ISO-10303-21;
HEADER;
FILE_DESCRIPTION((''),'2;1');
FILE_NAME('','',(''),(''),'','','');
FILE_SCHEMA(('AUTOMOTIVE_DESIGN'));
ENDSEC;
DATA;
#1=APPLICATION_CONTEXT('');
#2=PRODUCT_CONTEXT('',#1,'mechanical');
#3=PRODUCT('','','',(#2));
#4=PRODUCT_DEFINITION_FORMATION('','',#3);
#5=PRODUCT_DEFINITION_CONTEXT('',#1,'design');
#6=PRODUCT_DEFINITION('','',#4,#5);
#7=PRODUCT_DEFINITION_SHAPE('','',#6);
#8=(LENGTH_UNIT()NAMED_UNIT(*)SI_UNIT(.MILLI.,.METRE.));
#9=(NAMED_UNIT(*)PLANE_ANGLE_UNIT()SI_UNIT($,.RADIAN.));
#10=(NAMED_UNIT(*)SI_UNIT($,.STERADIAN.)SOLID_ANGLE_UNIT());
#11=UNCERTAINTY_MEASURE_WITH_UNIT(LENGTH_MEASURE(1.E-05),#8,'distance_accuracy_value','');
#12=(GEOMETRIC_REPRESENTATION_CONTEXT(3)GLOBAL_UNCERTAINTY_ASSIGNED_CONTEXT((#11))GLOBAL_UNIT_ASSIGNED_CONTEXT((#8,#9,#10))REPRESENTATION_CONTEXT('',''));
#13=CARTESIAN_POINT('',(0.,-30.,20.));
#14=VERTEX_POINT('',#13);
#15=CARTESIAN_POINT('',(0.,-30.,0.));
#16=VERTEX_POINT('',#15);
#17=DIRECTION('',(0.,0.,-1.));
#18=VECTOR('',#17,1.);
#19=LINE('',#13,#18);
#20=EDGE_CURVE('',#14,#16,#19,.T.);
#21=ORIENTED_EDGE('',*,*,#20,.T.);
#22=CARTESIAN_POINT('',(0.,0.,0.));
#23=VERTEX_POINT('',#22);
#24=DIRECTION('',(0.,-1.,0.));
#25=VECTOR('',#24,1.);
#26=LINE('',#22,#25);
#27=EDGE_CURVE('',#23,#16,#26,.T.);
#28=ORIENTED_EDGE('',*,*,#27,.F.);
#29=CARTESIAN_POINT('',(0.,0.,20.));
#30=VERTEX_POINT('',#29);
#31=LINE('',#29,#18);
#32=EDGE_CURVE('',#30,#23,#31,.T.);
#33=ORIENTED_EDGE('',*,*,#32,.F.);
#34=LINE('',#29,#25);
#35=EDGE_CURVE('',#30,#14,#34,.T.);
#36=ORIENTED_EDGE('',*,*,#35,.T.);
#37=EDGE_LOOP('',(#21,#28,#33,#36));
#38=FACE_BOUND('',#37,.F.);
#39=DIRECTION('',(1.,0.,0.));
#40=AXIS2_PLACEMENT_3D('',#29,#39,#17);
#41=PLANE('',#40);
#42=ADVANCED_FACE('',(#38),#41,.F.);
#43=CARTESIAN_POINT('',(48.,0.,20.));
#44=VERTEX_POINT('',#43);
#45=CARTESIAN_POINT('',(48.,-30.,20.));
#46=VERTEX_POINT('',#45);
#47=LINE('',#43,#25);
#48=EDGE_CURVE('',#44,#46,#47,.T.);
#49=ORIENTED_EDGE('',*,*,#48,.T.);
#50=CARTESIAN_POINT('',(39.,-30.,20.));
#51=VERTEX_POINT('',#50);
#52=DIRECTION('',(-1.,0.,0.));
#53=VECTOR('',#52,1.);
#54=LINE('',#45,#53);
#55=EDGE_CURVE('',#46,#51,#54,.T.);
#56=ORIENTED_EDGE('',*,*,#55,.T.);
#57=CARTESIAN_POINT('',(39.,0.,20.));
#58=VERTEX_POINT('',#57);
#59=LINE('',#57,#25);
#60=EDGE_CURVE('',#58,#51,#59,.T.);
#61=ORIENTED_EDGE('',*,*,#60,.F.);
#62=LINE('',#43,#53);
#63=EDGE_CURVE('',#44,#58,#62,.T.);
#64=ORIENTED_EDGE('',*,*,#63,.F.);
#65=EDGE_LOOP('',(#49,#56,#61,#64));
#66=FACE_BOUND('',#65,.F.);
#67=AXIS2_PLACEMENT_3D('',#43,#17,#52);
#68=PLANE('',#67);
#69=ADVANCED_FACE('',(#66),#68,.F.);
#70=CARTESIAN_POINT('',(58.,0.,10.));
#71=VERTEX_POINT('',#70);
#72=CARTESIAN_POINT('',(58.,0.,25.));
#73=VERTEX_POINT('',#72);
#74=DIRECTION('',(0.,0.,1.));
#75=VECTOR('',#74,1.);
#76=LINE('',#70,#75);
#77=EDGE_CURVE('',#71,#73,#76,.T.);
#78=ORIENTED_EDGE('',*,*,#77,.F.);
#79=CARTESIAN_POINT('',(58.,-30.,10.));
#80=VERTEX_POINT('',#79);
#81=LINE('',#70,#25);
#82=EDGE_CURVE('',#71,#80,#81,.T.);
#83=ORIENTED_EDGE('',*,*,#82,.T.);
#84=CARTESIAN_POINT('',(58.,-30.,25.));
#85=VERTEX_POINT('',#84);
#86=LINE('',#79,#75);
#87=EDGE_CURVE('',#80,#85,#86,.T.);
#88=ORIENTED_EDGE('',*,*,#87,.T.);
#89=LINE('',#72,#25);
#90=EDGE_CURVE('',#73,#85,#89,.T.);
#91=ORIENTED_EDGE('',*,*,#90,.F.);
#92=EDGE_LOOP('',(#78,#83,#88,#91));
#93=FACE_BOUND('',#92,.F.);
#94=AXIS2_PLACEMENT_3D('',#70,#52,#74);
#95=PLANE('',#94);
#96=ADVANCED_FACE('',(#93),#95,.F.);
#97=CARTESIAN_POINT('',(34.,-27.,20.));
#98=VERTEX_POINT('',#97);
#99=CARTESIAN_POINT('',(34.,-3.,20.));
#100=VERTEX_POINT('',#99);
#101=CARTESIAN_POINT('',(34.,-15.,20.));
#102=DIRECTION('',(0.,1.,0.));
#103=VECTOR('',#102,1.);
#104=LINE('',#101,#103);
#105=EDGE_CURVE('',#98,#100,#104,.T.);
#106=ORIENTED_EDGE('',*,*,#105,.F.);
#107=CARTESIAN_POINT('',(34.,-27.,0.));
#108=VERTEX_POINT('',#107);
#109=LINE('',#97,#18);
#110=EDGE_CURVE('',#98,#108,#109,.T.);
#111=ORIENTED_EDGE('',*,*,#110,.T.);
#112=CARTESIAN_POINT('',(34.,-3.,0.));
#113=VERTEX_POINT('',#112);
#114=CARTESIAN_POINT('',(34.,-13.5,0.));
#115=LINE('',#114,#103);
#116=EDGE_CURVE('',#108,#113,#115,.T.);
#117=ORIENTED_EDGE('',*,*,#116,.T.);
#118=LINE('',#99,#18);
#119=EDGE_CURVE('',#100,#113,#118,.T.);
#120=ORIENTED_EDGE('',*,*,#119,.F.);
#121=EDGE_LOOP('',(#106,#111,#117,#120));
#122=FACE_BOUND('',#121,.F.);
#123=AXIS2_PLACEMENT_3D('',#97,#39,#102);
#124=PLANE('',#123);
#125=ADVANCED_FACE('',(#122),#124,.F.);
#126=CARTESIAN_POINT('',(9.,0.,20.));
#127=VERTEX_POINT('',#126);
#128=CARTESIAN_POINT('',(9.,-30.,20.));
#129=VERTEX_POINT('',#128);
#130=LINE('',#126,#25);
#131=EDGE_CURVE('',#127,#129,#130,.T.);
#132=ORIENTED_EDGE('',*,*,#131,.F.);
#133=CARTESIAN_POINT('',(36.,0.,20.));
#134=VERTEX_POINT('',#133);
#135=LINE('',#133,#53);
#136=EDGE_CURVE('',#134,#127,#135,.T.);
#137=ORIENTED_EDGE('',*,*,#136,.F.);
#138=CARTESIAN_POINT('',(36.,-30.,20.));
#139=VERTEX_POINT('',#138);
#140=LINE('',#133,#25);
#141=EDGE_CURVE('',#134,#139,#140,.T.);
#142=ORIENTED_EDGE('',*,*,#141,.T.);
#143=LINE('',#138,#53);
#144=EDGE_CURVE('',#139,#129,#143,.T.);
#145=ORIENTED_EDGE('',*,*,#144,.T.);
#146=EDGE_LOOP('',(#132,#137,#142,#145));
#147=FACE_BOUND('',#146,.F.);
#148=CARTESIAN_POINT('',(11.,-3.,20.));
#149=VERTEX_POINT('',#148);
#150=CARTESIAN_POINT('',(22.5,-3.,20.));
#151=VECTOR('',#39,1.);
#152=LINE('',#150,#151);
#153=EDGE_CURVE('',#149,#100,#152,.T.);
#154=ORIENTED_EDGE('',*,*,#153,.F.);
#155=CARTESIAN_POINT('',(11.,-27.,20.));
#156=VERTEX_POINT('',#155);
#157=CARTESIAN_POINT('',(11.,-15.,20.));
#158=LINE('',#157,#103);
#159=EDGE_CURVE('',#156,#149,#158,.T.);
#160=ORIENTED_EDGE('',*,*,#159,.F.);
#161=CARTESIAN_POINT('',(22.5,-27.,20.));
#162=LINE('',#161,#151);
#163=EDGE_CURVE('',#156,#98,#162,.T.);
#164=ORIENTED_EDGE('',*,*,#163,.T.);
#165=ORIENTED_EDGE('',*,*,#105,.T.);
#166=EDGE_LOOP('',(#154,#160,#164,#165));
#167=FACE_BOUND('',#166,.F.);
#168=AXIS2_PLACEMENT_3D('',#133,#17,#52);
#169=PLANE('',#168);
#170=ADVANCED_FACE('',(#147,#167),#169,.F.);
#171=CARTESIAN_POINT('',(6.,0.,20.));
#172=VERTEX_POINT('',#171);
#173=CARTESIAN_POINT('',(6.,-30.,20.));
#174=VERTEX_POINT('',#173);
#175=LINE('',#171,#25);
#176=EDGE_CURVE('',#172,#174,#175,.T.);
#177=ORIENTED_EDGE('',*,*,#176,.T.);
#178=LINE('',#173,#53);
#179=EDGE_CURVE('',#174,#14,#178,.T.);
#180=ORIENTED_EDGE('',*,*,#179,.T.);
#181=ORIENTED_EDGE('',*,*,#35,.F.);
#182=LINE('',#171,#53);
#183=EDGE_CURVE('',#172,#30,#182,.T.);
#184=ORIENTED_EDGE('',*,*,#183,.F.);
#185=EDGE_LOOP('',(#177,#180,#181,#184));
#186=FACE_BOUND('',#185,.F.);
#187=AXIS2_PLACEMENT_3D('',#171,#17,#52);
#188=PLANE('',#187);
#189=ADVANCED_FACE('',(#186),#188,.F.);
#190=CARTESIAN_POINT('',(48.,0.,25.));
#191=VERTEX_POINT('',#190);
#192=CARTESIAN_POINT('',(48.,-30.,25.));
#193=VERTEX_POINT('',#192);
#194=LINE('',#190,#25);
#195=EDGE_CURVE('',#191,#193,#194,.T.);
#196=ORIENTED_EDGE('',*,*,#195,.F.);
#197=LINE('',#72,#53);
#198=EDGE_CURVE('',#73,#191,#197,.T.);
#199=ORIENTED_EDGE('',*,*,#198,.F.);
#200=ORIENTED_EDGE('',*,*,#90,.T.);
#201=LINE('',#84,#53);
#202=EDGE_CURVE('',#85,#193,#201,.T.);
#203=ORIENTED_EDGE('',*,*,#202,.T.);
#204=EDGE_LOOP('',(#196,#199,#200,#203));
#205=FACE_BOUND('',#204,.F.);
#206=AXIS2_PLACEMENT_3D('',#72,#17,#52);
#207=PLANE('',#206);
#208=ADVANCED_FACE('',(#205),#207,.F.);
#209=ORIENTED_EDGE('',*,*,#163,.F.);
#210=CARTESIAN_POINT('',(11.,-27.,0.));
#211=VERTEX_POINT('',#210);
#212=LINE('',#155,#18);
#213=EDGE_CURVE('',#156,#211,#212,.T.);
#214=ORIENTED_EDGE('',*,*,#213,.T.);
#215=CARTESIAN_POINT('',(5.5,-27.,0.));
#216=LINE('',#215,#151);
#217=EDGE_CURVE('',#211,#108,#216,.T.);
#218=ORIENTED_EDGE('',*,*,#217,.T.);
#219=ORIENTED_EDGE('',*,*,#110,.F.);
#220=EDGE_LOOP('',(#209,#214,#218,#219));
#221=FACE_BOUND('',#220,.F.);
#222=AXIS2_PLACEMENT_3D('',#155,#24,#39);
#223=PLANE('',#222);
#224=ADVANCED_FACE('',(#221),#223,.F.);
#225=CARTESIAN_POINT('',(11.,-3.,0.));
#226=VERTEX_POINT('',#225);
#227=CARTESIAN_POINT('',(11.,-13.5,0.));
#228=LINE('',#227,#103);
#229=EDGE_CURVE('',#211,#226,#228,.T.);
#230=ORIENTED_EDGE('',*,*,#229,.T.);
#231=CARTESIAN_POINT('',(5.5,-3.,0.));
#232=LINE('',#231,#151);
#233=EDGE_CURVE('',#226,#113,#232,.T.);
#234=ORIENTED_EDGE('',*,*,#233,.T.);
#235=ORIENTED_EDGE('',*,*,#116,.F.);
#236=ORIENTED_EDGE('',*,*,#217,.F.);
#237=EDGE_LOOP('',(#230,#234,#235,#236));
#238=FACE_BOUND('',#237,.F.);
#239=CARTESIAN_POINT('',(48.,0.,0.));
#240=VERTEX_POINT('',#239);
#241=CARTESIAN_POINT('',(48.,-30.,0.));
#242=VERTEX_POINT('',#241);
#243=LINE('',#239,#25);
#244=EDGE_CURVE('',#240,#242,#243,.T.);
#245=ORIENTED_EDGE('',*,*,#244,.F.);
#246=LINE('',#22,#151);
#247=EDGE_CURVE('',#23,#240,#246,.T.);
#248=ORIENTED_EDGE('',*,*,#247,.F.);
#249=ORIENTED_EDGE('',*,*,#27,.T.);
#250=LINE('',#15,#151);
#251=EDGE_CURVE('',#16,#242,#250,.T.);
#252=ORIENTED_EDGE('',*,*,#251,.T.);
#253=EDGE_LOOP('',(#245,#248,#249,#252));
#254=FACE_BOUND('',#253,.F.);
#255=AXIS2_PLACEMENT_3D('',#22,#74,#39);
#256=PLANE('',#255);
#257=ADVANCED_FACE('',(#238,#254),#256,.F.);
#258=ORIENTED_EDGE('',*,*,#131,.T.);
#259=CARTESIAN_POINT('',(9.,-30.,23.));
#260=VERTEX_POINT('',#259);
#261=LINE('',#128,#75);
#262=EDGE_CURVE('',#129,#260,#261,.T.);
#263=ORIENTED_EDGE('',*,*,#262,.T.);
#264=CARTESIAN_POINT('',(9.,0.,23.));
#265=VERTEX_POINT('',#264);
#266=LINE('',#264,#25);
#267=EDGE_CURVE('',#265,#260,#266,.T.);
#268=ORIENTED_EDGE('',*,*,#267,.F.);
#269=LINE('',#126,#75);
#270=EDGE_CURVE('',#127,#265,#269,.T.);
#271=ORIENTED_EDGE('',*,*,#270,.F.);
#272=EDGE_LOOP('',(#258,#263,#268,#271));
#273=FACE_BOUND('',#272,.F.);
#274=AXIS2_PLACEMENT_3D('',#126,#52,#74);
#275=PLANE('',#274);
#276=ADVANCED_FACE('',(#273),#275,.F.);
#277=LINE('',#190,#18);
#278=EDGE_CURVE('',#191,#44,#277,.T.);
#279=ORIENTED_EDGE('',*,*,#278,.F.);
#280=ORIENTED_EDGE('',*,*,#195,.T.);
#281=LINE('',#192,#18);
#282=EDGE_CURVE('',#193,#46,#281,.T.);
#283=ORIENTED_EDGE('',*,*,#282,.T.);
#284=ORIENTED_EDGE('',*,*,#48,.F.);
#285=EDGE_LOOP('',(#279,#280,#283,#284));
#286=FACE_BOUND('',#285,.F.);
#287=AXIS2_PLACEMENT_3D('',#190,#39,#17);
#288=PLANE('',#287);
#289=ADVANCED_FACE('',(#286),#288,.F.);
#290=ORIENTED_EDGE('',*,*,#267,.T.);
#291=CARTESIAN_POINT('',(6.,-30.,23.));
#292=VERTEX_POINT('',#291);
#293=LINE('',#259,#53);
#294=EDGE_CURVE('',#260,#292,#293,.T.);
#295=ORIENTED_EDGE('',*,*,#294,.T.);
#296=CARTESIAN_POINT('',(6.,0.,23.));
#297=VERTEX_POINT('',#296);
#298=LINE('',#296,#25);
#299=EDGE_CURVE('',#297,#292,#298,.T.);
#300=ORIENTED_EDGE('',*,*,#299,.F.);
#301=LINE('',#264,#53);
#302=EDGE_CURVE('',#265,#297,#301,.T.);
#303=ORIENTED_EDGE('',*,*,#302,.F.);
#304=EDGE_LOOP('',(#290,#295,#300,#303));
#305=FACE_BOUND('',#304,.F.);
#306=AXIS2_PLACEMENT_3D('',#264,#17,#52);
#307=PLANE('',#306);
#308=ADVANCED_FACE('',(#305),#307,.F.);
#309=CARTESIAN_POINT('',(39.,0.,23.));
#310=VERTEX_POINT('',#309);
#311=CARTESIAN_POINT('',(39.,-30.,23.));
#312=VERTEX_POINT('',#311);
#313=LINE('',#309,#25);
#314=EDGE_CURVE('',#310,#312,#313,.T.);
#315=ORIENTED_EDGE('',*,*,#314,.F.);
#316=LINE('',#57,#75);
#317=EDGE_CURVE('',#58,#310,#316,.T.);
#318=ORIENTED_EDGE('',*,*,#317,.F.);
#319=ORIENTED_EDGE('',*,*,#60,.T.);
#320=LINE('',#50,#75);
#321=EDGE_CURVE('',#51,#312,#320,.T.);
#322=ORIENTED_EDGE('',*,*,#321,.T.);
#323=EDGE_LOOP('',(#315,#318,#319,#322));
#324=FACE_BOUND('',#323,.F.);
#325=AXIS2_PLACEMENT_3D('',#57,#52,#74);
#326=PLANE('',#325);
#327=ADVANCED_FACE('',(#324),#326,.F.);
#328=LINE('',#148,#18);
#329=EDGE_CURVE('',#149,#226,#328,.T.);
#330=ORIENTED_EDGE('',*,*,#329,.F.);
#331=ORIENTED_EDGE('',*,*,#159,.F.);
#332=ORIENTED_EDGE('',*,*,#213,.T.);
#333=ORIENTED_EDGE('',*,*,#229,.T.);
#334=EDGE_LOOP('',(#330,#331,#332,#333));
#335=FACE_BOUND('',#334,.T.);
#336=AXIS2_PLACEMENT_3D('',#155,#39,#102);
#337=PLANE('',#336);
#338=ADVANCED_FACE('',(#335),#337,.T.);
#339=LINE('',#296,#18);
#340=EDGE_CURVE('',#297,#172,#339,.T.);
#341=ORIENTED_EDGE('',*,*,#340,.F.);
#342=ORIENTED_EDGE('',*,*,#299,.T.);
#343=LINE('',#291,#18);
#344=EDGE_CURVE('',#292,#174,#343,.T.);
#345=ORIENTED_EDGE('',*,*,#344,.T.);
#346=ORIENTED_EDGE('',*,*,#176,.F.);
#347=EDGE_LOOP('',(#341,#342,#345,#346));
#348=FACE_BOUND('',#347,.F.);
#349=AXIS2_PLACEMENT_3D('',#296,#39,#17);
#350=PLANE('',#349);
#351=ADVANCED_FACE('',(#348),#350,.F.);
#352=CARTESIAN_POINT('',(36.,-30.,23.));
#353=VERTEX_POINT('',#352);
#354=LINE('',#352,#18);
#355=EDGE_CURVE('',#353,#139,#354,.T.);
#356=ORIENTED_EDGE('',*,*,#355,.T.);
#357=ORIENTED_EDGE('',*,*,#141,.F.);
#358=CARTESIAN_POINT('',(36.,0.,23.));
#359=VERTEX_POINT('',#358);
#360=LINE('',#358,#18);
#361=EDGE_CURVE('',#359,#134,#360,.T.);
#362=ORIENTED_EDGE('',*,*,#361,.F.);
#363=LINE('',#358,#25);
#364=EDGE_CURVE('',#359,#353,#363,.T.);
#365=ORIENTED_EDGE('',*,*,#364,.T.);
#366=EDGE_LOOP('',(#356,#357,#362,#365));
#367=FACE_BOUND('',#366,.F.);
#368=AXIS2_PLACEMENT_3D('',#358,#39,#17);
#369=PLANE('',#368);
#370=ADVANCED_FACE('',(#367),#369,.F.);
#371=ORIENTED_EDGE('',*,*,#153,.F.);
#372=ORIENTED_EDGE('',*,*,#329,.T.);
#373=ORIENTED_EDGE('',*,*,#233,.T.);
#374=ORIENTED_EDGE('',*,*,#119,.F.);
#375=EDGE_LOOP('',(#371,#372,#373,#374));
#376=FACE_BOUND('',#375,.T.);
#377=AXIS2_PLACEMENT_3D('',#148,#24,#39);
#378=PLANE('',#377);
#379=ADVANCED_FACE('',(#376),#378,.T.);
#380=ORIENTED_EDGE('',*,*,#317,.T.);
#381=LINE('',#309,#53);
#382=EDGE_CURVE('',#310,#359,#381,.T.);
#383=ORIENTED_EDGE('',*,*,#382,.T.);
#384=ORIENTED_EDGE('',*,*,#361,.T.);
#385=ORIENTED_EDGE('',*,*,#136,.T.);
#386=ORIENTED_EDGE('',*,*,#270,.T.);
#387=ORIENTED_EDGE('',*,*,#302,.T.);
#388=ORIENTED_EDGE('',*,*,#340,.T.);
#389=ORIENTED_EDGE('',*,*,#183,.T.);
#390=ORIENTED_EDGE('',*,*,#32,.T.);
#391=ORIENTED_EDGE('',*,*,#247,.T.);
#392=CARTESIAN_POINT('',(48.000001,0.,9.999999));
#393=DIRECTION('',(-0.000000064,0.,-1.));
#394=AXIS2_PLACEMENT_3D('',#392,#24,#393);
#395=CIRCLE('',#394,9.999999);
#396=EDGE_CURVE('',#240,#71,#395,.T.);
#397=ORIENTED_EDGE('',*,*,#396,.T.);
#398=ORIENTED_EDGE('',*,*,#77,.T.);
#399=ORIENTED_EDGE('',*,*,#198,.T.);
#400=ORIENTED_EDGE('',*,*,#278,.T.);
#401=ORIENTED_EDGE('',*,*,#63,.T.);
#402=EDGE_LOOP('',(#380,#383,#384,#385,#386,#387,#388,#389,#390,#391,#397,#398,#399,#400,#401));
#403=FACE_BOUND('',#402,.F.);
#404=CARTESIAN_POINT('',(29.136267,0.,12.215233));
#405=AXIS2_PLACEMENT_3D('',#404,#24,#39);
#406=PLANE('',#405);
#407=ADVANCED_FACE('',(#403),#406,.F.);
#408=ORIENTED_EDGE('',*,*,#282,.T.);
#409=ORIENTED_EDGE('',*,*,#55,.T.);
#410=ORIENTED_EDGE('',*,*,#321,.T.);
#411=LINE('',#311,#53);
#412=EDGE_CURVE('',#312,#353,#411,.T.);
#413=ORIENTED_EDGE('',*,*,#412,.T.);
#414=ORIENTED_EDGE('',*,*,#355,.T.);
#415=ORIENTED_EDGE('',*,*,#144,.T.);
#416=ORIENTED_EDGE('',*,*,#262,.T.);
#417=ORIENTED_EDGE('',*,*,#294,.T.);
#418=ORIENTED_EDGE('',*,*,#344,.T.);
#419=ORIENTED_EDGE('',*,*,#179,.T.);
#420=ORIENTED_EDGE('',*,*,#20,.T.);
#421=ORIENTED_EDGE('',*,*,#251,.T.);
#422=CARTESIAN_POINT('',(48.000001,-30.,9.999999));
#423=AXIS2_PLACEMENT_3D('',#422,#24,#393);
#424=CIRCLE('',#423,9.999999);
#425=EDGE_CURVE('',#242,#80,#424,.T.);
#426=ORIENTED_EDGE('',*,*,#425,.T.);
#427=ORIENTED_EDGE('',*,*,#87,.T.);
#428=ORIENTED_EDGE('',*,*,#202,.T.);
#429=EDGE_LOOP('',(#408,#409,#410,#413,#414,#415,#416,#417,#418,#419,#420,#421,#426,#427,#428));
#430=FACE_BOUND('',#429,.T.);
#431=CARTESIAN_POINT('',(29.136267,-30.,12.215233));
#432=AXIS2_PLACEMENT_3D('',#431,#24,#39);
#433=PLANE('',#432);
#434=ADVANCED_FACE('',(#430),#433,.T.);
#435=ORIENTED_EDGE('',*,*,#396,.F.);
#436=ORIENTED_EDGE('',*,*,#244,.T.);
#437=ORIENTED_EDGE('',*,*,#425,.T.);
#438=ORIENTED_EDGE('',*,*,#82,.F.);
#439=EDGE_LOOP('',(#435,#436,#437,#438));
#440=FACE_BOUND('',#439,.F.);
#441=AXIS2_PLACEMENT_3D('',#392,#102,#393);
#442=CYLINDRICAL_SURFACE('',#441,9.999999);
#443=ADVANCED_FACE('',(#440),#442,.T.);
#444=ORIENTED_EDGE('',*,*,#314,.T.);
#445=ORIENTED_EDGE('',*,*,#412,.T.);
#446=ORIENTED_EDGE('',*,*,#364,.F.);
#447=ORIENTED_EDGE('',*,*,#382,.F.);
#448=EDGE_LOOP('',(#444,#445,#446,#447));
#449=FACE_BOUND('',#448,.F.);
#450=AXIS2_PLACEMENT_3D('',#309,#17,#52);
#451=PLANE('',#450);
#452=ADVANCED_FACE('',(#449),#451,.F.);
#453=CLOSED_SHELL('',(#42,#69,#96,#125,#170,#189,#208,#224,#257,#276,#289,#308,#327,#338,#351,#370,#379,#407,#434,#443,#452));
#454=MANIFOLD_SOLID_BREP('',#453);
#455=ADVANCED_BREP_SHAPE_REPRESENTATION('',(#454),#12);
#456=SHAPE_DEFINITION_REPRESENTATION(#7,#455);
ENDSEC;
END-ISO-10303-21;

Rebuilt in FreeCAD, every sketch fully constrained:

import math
import FreeCAD as App
import Part
import Sketcher

V = App.Vector
Q = App.Units.Quantity


def add_polygon(sketch, points):
    """Adds a closed chain of lines whose ends are joined by coincident constraints."""
    first, n = sketch.GeometryCount, len(points)
    for a, b in zip(points, points[1:] + points[:1]):
        sketch.addGeometry(Part.LineSegment(App.Vector(*a, 0), App.Vector(*b, 0)), False)
    for i in range(n):
        sketch.addConstraint(Sketcher.Constraint("Coincident", first + i, 2, first + (i + 1) % n, 1))

doc = App.newDocument("Part")
body = doc.addObject("PartDesign::Body", "Body")

# Sketch on XZ plane
sketch1 = body.newObject("Sketcher::SketchObject", "Sketch")
sketch1.AttachmentSupport = (doc.getObject("XZ_Plane"), [""])
sketch1.MapMode = "FlatFace"
sketch1.addGeometry([
    Part.LineSegment(V(0, 20, 0), V(0, 0, 0)),  # 0
    Part.LineSegment(V(0, 0, 0), V(48, 0, 0)),  # 1
    Part.ArcOfCircle(Part.Circle(V(48, 10, 0), V(0, 0, 1), 10), math.radians(-90), math.radians(0)),  # 2
    Part.LineSegment(V(58, 10, 0), V(58, 25, 0)),  # 3
    Part.LineSegment(V(58, 25, 0), V(48, 25, 0)),  # 4
    Part.LineSegment(V(48, 25, 0), V(48, 20, 0)),  # 5
    Part.LineSegment(V(48, 20, 0), V(39, 20, 0)),  # 6
    Part.LineSegment(V(39, 20, 0), V(39, 23, 0)),  # 7
    Part.LineSegment(V(39, 23, 0), V(36, 23, 0)),  # 8
    Part.LineSegment(V(36, 23, 0), V(36, 20, 0)),  # 9
    Part.LineSegment(V(36, 20, 0), V(9, 20, 0)),  # 10
    Part.LineSegment(V(9, 20, 0), V(9, 23, 0)),  # 11
    Part.LineSegment(V(9, 23, 0), V(6, 23, 0)),  # 12
    Part.LineSegment(V(6, 23, 0), V(6, 20, 0)),  # 13
    Part.LineSegment(V(6, 20, 0), V(0, 20, 0)),  # 14
], False)
sketch1.addConstraint([
    Sketcher.Constraint("Coincident", 0, 2, 1, 1),
    Sketcher.Constraint("Tangent", 1, 2, 2, 1),
    Sketcher.Constraint("Tangent", 2, 2, 3, 1),
    Sketcher.Constraint("Coincident", 3, 2, 4, 1),
    Sketcher.Constraint("Coincident", 4, 2, 5, 1),
    Sketcher.Constraint("Coincident", 5, 2, 6, 1),
    Sketcher.Constraint("Coincident", 6, 2, 7, 1),
    Sketcher.Constraint("Coincident", 7, 2, 8, 1),
    Sketcher.Constraint("Coincident", 8, 2, 9, 1),
    Sketcher.Constraint("Coincident", 9, 2, 10, 1),
    Sketcher.Constraint("Coincident", 10, 2, 11, 1),
    Sketcher.Constraint("Coincident", 11, 2, 12, 1),
    Sketcher.Constraint("Coincident", 12, 2, 13, 1),
    Sketcher.Constraint("Coincident", 13, 2, 14, 1),
    Sketcher.Constraint("Coincident", 14, 2, 0, 1),
    Sketcher.Constraint("Vertical", 0),
    Sketcher.Constraint("Horizontal", 1),
    Sketcher.Constraint("Vertical", 3),
    Sketcher.Constraint("Horizontal", 4),
    Sketcher.Constraint("Vertical", 5),
    Sketcher.Constraint("Horizontal", 6),
    Sketcher.Constraint("Vertical", 7),
    Sketcher.Constraint("Horizontal", 8),
    Sketcher.Constraint("Vertical", 9),
    Sketcher.Constraint("Horizontal", 10),
    Sketcher.Constraint("Vertical", 11),
    Sketcher.Constraint("Horizontal", 12),
    Sketcher.Constraint("Vertical", 13),
    Sketcher.Constraint("Horizontal", 14),
    Sketcher.Constraint("Coincident", 0, 2, -1, 1),
    Sketcher.Constraint("Horizontal", 6, 2, 9, 2),
    Sketcher.Constraint("Horizontal", 8, 2, 11, 2),
    Sketcher.Constraint("Horizontal", 10, 2, 13, 2),
    Sketcher.Constraint("Vertical", 1, 2, 4, 2),
    Sketcher.Constraint("Equal", 8, 12),
    Sketcher.Constraint("Equal", 12, 7),
    Sketcher.Constraint("Radius", 2, Q("9.999999 mm")),
    Sketcher.Constraint("DistanceX", 1, 1, 1, 2, Q("48 mm")),
    Sketcher.Constraint("DistanceX", 6, 2, 6, 1, Q("9 mm")),
    Sketcher.Constraint("DistanceX", 8, 2, 8, 1, Q("3 mm")),
    Sketcher.Constraint("DistanceX", 10, 2, 10, 1, Q("27 mm")),
    Sketcher.Constraint("DistanceY", 0, 2, 0, 1, Q("20 mm")),
    Sketcher.Constraint("DistanceY", 3, 1, 3, 2, Q("15 mm")),
])
pad1 = body.newObject("PartDesign::Pad", "Pad")
pad1.Profile = sketch1
pad1.Length = 30

# Sketch on XY plane
sketch2 = body.newObject("Sketcher::SketchObject", "Sketch001")
sketch2.AttachmentSupport = (doc.getObject("XY_Plane"), [""])
sketch2.MapMode = "FlatFace"
sketch2.AttachmentOffset = App.Placement(V(0, 0, 20), App.Rotation())
add_polygon(sketch2, [(11, -3), (11, -27), (34, -27), (34, -3)])  # lines 0-3
sketch2.addConstraint([
    Sketcher.Constraint("Vertical", 0),
    Sketcher.Constraint("Horizontal", 1),
    Sketcher.Constraint("Vertical", 2),
    Sketcher.Constraint("Horizontal", 3),
    Sketcher.Constraint("DistanceX", 1, 1, 1, 2, Q("23 mm")),
    Sketcher.Constraint("DistanceY", 0, 2, 0, 1, Q("24 mm")),
    Sketcher.Constraint("DistanceX", -1, 1, 0, 2, Q("11 mm")),
    Sketcher.Constraint("DistanceY", 0, 2, -1, 1, Q("27 mm")),
])
pocket1 = body.newObject("PartDesign::Pocket", "Pocket")
pocket1.Profile = sketch2
pocket1.Type = "ThroughAll"

doc.recompute()
